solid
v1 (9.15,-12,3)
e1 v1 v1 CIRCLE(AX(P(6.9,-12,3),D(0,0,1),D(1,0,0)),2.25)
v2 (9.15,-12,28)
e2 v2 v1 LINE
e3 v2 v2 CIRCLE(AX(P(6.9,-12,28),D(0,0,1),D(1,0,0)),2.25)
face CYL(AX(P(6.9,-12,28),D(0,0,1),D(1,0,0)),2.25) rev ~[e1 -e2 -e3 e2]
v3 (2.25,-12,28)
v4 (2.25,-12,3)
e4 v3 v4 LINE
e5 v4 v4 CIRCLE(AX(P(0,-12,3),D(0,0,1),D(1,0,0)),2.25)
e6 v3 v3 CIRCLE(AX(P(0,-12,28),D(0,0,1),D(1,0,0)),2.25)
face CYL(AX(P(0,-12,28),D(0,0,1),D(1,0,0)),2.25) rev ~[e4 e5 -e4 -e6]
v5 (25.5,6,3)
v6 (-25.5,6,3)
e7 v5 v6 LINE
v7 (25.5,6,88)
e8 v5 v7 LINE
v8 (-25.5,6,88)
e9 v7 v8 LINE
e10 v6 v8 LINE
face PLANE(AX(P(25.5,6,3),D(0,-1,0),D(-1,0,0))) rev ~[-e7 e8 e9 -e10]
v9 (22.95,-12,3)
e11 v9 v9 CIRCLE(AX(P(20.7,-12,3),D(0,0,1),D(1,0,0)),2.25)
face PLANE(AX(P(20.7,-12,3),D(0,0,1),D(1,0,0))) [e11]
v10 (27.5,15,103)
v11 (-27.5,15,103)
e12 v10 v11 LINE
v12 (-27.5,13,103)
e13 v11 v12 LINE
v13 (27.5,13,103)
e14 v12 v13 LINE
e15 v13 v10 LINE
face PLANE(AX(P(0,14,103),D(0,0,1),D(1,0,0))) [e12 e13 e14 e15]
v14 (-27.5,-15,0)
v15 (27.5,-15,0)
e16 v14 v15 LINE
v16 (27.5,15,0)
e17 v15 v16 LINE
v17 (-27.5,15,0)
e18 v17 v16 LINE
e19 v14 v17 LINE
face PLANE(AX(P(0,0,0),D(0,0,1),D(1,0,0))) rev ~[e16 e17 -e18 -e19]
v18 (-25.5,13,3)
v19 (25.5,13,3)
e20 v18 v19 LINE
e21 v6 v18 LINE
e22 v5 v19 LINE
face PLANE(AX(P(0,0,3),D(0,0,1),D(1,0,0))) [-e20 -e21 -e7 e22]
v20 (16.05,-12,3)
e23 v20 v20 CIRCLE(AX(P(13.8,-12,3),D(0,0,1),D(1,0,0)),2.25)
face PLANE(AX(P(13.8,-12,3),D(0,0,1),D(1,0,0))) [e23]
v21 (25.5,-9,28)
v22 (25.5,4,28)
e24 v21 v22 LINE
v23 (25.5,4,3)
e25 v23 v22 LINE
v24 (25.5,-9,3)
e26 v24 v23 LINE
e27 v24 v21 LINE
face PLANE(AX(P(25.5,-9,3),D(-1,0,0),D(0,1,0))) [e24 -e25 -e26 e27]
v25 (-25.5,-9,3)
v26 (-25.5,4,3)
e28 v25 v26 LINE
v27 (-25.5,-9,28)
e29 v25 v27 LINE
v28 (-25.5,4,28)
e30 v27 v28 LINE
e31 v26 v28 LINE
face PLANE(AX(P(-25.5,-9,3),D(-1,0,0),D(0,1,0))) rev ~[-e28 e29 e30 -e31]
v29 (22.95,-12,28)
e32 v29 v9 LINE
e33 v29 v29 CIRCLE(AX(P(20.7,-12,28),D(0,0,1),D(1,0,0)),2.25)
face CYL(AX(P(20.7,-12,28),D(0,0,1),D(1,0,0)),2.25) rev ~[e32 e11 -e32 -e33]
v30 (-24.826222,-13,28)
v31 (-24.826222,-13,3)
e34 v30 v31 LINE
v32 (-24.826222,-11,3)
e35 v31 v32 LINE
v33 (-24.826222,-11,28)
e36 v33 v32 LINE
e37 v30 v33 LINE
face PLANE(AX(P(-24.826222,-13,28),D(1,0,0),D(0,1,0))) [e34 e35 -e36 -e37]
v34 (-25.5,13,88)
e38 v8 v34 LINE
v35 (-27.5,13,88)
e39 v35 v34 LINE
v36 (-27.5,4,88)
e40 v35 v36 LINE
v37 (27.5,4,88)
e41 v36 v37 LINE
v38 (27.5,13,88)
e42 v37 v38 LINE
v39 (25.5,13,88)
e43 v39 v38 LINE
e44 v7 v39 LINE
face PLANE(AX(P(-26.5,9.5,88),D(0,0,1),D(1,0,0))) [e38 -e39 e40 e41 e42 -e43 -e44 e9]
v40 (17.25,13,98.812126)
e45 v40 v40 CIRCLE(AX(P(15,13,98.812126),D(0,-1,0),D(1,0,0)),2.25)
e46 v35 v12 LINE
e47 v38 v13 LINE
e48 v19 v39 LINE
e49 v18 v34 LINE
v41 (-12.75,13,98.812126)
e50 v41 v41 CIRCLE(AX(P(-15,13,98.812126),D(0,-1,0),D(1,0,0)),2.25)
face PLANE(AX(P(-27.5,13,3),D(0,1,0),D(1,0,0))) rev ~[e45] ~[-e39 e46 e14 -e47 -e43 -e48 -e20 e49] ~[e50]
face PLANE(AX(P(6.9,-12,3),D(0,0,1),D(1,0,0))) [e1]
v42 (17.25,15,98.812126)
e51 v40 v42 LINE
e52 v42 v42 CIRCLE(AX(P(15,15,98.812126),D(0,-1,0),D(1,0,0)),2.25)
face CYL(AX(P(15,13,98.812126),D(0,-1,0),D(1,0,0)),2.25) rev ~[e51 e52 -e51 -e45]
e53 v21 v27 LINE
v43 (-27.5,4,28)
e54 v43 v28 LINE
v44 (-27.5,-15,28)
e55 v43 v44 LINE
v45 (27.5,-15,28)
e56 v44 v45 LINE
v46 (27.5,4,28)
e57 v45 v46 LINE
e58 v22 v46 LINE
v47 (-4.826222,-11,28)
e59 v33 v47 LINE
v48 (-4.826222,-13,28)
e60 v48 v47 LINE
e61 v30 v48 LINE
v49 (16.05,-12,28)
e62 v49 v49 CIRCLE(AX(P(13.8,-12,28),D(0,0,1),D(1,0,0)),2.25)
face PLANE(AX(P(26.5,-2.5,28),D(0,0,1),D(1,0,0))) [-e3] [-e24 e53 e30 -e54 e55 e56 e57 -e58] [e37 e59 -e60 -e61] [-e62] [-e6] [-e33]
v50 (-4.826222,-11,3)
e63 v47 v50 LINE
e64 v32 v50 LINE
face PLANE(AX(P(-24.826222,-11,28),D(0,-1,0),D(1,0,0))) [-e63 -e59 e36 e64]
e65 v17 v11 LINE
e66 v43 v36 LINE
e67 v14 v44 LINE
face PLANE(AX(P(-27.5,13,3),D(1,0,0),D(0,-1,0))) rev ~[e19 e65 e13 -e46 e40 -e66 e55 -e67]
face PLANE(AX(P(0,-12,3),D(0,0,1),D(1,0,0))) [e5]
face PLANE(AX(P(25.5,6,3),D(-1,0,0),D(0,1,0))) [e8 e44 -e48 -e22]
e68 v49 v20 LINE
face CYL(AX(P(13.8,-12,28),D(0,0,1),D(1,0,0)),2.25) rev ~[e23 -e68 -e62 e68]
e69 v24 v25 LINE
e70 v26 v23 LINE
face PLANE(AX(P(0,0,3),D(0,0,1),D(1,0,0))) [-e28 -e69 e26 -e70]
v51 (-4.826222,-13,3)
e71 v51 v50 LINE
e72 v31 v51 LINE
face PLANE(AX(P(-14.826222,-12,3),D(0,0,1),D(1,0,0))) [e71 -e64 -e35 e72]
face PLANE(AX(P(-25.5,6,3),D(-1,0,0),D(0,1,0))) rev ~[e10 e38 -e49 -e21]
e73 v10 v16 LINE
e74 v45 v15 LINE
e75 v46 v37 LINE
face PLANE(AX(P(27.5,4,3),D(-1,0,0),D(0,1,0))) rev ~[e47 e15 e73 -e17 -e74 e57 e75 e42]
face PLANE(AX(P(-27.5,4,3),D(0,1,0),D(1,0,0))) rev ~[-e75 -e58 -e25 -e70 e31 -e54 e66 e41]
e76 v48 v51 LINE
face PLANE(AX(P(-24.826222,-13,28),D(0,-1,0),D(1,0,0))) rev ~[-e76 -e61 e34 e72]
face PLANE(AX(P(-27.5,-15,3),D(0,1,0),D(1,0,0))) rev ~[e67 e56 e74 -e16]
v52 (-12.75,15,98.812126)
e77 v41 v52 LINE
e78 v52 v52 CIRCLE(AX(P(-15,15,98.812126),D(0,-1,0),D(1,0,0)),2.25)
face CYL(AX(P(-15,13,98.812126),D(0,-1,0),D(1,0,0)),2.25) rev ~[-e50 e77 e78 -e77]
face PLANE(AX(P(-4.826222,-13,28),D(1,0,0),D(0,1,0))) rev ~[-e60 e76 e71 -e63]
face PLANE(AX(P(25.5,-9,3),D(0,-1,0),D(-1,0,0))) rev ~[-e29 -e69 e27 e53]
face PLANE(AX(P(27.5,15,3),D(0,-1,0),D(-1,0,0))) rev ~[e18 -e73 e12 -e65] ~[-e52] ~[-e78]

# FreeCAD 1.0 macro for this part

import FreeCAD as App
import Part
import Sketcher
Q = App.Units.Quantity


def add_polygon(sketch, points):
    """Adds a closed chain of lines whose ends are joined by coincident constraints."""
    first, n = sketch.GeometryCount, len(points)
    for a, b in zip(points, points[1:] + points[:1]):
        sketch.addGeometry(Part.LineSegment(App.Vector(*a, 0), App.Vector(*b, 0)), False)
    for i in range(n):
        sketch.addConstraint(Sketcher.Constraint("Coincident", first + i, 2, first + (i + 1) % n, 1))

doc = App.newDocument("Part")
params = doc.addObject("Spreadsheet::Sheet", "Params")
for row, (alias, value) in enumerate([
    ("sketch1_width", "55 mm"),
    ("sketch1_height", "30 mm"),
    ("pad1_length", "3 mm"),
    ("sketch2_width", "55 mm"),
    ("sketch2_height", "2 mm"),
    ("pad2_length", "100 mm"),
    ("sketch3_width", "55 mm"),
    ("sketch3_width2", "2 mm"),
    ("sketch3_height", "9 mm"),
    ("sketch3_height2", "7 mm"),
    ("pad3_length", "85 mm"),
    ("sketch4_width", "51 mm"),
    ("sketch4_width2", "2 mm"),
    ("sketch4_height", "13 mm"),
    ("sketch4_height2", "19 mm"),
    ("pad4_length", "25 mm"),
    ("sketch5_diameter", "4.5 mm"),
    ("sketch5_width", "20 mm"),
    ("sketch5_height", "2 mm"),
    ("pocket1_length", "25 mm"),
    ("sketch6_diameter", "4.5 mm"),
], start=1):
    params.set(f"A{row}", alias)
    params.set(f"B{row}", "=" + value)
    params.setAlias(f"B{row}", alias)

body = doc.addObject("PartDesign::Body", "Body")

sketch1 = doc.addObject("Sketcher::SketchObject", "Sketch")
body.addObject(sketch1)
sketch1.AttachmentSupport = (doc.XY_Plane, [""])
sketch1.MapMode = "FlatFace"
add_polygon(sketch1, [(-27.5, 15), (-27.5, -15), (27.5, -15), (27.5, 15)])
sketch1.addConstraint([
    Sketcher.Constraint("Vertical", 0),
    Sketcher.Constraint("Horizontal", 1),
    Sketcher.Constraint("Vertical", 2),
    Sketcher.Constraint("Horizontal", 3),
    Sketcher.Constraint("Symmetric", 0, 2, 2, 2, -1, 1),
    Sketcher.Constraint("DistanceX", 1, 1, 1, 2, Q("55 mm")),
    Sketcher.Constraint("DistanceY", 0, 2, 0, 1, Q("30 mm")),
])
sketch1.setExpression("Constraints[9]", "Params.sketch1_width")
sketch1.setExpression("Constraints[10]", "Params.sketch1_height")
pad1 = doc.addObject("PartDesign::Pad", "Pad")
body.addObject(pad1)
pad1.Profile = sketch1
pad1.setExpression("Length", "Params.pad1_length")

sketch2 = doc.addObject("Sketcher::SketchObject", "Sketch001")
body.addObject(sketch2)
sketch2.AttachmentSupport = (doc.XY_Plane, [""])
sketch2.MapMode = "FlatFace"
sketch2.AttachmentOffset = App.Placement(App.Vector(0, 0, 3), App.Rotation())
add_polygon(sketch2, [(27.5, 15), (-27.5, 15), (-27.5, 13), (27.5, 13)])
sketch2.addConstraint([
    Sketcher.Constraint("Horizontal", 0),
    Sketcher.Constraint("Vertical", 1),
    Sketcher.Constraint("Horizontal", 2),
    Sketcher.Constraint("Vertical", 3),
    Sketcher.Constraint("DistanceX", 0, 2, 0, 1, Q("55 mm")),
    Sketcher.Constraint("DistanceY", 1, 2, 1, 1, Q("2 mm")),
    Sketcher.Constraint("DistanceY", -1, 1, 0, 2, Q("15 mm")),
    Sketcher.Constraint("DistanceX", 0, 2, -1, 1, Q("27.5 mm")),
])
sketch2.setExpression("Constraints[8]", "Params.sketch2_width")
sketch2.setExpression("Constraints[9]", "Params.sketch2_height")
pad2 = doc.addObject("PartDesign::Pad", "Pad001")
body.addObject(pad2)
pad2.Profile = sketch2
pad2.setExpression("Length", "Params.pad2_length")

sketch3 = doc.addObject("Sketcher::SketchObject", "Sketch002")
body.addObject(sketch3)
sketch3.AttachmentSupport = (doc.XY_Plane, [""])
sketch3.MapMode = "FlatFace"
sketch3.AttachmentOffset = App.Placement(App.Vector(0, 0, 3), App.Rotation())
add_polygon(sketch3, [(-27.5, 13), (-27.5, 4), (27.5, 4), (27.5, 13), (25.5, 13), (25.5, 6), (-25.5, 6), (-25.5, 13)])
sketch3.addConstraint([
    Sketcher.Constraint("Vertical", 0),
    Sketcher.Constraint("Horizontal", 1),
    Sketcher.Constraint("Vertical", 2),
    Sketcher.Constraint("Horizontal", 3),
    Sketcher.Constraint("Vertical", 4),
    Sketcher.Constraint("Horizontal", 5),
    Sketcher.Constraint("Vertical", 6),
    Sketcher.Constraint("Horizontal", 7),
    Sketcher.Constraint("Symmetric", 3, 2, 6, 2, -2),
    Sketcher.Constraint("Equal", 3, 7),
    Sketcher.Constraint("DistanceX", 1, 1, 1, 2, Q("55 mm")),
    Sketcher.Constraint("DistanceX", 3, 2, 3, 1, Q("2 mm")),
    Sketcher.Constraint("DistanceY", 0, 2, 0, 1, Q("9 mm")),
    Sketcher.Constraint("DistanceY", 4, 2, 4, 1, Q("7 mm")),
    Sketcher.Constraint("DistanceY", -1, 1, 0, 2, Q("4 mm")),
])
sketch3.setExpression("Constraints[18]", "Params.sketch3_width")
sketch3.setExpression("Constraints[19]", "Params.sketch3_width2")
sketch3.setExpression("Constraints[20]", "Params.sketch3_height")
sketch3.setExpression("Constraints[21]", "Params.sketch3_height2")
pad3 = doc.addObject("PartDesign::Pad", "Pad002")
body.addObject(pad3)
pad3.Profile = sketch3
pad3.setExpression("Length", "Params.pad3_length")

sketch4 = doc.addObject("Sketcher::SketchObject", "Sketch003")
body.addObject(sketch4)
sketch4.AttachmentSupport = (doc.XY_Plane, [""])
sketch4.MapMode = "FlatFace"
sketch4.AttachmentOffset = App.Placement(App.Vector(0, 0, 3), App.Rotation())
add_polygon(sketch4, [(25.5, 4), (25.5, -9), (-25.5, -9), (-25.5, 4), (-27.5, 4), (-27.5, -15), (27.5, -15), (27.5, 4)])
sketch4.addConstraint([
    Sketcher.Constraint("Vertical", 0),
    Sketcher.Constraint("Horizontal", 1),
    Sketcher.Constraint("Vertical", 2),
    Sketcher.Constraint("Horizontal", 3),
    Sketcher.Constraint("Vertical", 4),
    Sketcher.Constraint("Horizontal", 5),
    Sketcher.Constraint("Vertical", 6),
    Sketcher.Constraint("Horizontal", 7),
    Sketcher.Constraint("Symmetric", 3, 2, 6, 2, -2),
    Sketcher.Constraint("Equal", 3, 7),
    Sketcher.Constraint("DistanceX", 1, 2, 1, 1, Q("51 mm")),
    Sketcher.Constraint("DistanceX", 3, 2, 3, 1, Q("2 mm")),
    Sketcher.Constraint("DistanceY", 0, 2, 0, 1, Q("13 mm")),
    Sketcher.Constraint("DistanceY", 4, 2, 4, 1, Q("19 mm")),
    Sketcher.Constraint("DistanceY", 0, 2, -1, 1, Q("9 mm")),
])
sketch4.setExpression("Constraints[18]", "Params.sketch4_width")
sketch4.setExpression("Constraints[19]", "Params.sketch4_width2")
sketch4.setExpression("Constraints[20]", "Params.sketch4_height")
sketch4.setExpression("Constraints[21]", "Params.sketch4_height2")
pad4 = doc.addObject("PartDesign::Pad", "Pad003")
body.addObject(pad4)
pad4.Profile = sketch4
pad4.setExpression("Length", "Params.pad4_length")

sketch5 = doc.addObject("Sketcher::SketchObject", "Sketch004")
body.addObject(sketch5)
sketch5.AttachmentSupport = (doc.XY_Plane, [""])
sketch5.MapMode = "FlatFace"
sketch5.AttachmentOffset = App.Placement(App.Vector(0, 0, 28), App.Rotation())
sketch5.addGeometry(Part.Circle(App.Vector(0, -12, 0), App.Vector(0, 0, 1), 2.25), False)
sketch5.addGeometry(Part.Circle(App.Vector(6.9, -12, 0), App.Vector(0, 0, 1), 2.25), False)
sketch5.addGeometry(Part.Circle(App.Vector(13.8, -12, 0), App.Vector(0, 0, 1), 2.25), False)
sketch5.addGeometry(Part.Circle(App.Vector(20.7, -12, 0), App.Vector(0, 0, 1), 2.25), False)
add_polygon(sketch5, [(-24.826222, -11), (-24.826222, -13), (-4.826222, -13), (-4.826222, -11)])
sketch5.addConstraint([
    Sketcher.Constraint("Vertical", 4),
    Sketcher.Constraint("Horizontal", 5),
    Sketcher.Constraint("Vertical", 6),
    Sketcher.Constraint("Horizontal", 7),
    Sketcher.Constraint("Equal", 0, 1),
    Sketcher.Constraint("Equal", 1, 2),
    Sketcher.Constraint("Equal", 2, 3),
    Sketcher.Constraint("PointOnObject", 0, 3, -2),
    Sketcher.Constraint("Horizontal", 0, 3, 1, 3),
    Sketcher.Constraint("Horizontal", 1, 3, 2, 3),
    Sketcher.Constraint("Horizontal", 2, 3, 3, 3),
    Sketcher.Constraint("Diameter", 0, Q("4.5 mm")),
    Sketcher.Constraint("DistanceX", 5, 1, 5, 2, Q("20 mm")),
    Sketcher.Constraint("DistanceY", 4, 2, 4, 1, Q("2 mm")),
    Sketcher.Constraint("DistanceY", 0, 3, -1, 1, Q("12 mm")),
    Sketcher.Constraint("DistanceY", 4, 2, -1, 1, Q("13 mm")),
    Sketcher.Constraint("DistanceX", -1, 1, 1, 3, Q("6.9 mm")),
    Sketcher.Constraint("DistanceX", -1, 1, 2, 3, Q("13.8 mm")),
    Sketcher.Constraint("DistanceX", -1, 1, 3, 3, Q("20.7 mm")),
    Sketcher.Constraint("DistanceX", 5, 2, -1, 1, Q("4.826222 mm")),
])
sketch5.setExpression("Constraints[15]", "Params.sketch5_diameter")
sketch5.setExpression("Constraints[16]", "Params.sketch5_width")
sketch5.setExpression("Constraints[17]", "Params.sketch5_height")
pocket1 = doc.addObject("PartDesign::Pocket", "Pocket")
body.addObject(pocket1)
pocket1.Profile = sketch5
pocket1.setExpression("Length", "Params.pocket1_length")

sketch6 = doc.addObject("Sketcher::SketchObject", "Sketch005")
body.addObject(sketch6)
sketch6.AttachmentSupport = (doc.XZ_Plane, [""])
sketch6.MapMode = "FlatFace"
sketch6.AttachmentOffset = App.Placement(App.Vector(0, 0, -13), App.Rotation())
sketch6.addGeometry([
    Part.Circle(App.Vector(-15, 98.812126, 0), App.Vector(0, 0, 1), 2.25),
    Part.Circle(App.Vector(15, 98.812126, 0), App.Vector(0, 0, 1), 2.25),
], False)
sketch6.addConstraint([
    Sketcher.Constraint("Equal", 0, 1),
    Sketcher.Constraint("Symmetric", 0, 3, 1, 3, -2),
    Sketcher.Constraint("Diameter", 0, Q("4.5 mm")),
    Sketcher.Constraint("DistanceX", 0, 3, -1, 1, Q("15 mm")),
    Sketcher.Constraint("DistanceY", -1, 1, 0, 3, Q("98.812126 mm")),
])
sketch6.setExpression("Constraints[2]", "Params.sketch6_diameter")
pocket2 = doc.addObject("PartDesign::Pocket", "Pocket001")
body.addObject(pocket2)
pocket2.Profile = sketch6
pocket2.Type = "ThroughAll"

doc.recompute()
